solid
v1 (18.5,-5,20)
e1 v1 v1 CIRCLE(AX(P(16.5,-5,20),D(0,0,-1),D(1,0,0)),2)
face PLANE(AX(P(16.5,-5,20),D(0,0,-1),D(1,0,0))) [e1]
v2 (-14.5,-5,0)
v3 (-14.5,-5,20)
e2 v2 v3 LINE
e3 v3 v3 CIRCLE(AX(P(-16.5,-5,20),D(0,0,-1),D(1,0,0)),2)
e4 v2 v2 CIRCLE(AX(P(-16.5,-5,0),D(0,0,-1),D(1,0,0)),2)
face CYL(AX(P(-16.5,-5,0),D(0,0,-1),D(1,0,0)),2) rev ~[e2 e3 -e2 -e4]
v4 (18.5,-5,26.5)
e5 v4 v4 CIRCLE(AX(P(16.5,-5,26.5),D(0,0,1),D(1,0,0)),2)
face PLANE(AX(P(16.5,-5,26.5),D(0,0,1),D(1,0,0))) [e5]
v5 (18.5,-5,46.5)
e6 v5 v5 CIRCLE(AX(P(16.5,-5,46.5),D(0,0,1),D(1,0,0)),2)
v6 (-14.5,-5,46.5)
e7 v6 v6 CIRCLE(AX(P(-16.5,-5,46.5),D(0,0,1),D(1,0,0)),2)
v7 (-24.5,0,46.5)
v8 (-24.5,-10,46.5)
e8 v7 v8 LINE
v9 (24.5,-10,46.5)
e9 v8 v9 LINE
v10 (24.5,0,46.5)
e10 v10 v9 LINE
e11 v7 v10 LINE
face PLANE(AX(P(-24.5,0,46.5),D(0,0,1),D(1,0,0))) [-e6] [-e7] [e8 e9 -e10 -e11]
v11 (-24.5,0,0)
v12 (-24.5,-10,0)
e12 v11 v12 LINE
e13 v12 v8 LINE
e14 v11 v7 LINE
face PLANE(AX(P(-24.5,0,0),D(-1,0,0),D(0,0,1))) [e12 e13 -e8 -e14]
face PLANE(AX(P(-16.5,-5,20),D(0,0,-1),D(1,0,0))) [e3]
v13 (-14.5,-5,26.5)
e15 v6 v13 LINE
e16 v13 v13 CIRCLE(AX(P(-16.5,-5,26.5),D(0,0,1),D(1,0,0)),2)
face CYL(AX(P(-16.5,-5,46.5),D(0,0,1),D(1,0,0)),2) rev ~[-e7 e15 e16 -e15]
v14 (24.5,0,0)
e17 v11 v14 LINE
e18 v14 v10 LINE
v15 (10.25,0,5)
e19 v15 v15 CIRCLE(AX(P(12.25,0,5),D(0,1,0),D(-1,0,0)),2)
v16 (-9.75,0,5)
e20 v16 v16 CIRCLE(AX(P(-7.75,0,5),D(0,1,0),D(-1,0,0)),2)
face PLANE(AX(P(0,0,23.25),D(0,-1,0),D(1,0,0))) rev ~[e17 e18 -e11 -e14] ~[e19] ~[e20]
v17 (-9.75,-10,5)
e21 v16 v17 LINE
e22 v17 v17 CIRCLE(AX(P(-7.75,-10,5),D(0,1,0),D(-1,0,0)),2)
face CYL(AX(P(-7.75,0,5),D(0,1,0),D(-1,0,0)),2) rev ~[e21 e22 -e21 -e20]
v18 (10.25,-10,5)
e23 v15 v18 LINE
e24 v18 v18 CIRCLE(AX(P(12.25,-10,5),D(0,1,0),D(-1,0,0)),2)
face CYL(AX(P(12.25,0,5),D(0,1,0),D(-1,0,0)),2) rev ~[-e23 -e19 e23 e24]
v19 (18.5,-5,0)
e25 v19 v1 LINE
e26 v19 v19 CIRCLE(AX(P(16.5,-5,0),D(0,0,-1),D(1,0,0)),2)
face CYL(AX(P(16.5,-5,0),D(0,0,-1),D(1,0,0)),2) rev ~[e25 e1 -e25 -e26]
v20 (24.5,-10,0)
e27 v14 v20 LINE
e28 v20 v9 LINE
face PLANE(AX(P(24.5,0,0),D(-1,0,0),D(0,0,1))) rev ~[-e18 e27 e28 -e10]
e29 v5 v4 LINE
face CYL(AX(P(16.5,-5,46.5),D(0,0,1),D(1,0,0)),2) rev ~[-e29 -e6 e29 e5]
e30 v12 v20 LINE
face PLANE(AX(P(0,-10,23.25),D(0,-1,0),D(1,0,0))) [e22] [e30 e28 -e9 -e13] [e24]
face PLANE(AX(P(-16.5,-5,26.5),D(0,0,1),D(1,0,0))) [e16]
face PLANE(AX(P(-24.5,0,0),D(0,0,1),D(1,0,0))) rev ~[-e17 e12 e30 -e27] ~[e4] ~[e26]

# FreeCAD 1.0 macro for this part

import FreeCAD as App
import Part
import Sketcher
Q = App.Units.Quantity

doc = App.newDocument("Part")
body = doc.addObject("PartDesign::Body", "Body")

# Sketch on XZ plane
sketch1 = doc.addObject("Sketcher::SketchObject", "Sketch")
body.addObject(sketch1)
sketch1.AttachmentSupport = (doc.XZ_Plane, [""])
sketch1.MapMode = "FlatFace"
sketch1.addGeometry([
    Part.LineSegment(App.Vector(-24, 46, 0), App.Vector(-24, 0, 0)),
    Part.LineSegment(App.Vector(-24, 0, 0), App.Vector(24, 0, 0)),
    Part.LineSegment(App.Vector(24, 0, 0), App.Vector(24, 46, 0)),
    Part.LineSegment(App.Vector(24, 46, 0), App.Vector(-24, 46, 0)),
], False)
sketch1.addConstraint([
    Sketcher.Constraint("Coincident", 0, 2, 1, 1),
    Sketcher.Constraint("Coincident", 1, 2, 2, 1),
    Sketcher.Constraint("Coincident", 2, 2, 3, 1),
    Sketcher.Constraint("Coincident", 3, 2, 0, 1),
    Sketcher.Constraint("Vertical", 0),
    Sketcher.Constraint("Horizontal", 1),
    Sketcher.Constraint("Vertical", 2),
    Sketcher.Constraint("Horizontal", 3),
    Sketcher.Constraint("Symmetric", 0, 2, 1, 2, -1, 1),
    Sketcher.Constraint("DistanceX", 1, 1, 1, 2, Q("49 mm")),
    Sketcher.Constraint("DistanceY", 0, 2, 0, 1, Q("46.5 mm")),
])
pad1 = doc.addObject("PartDesign::Pad", "Pad")
body.addObject(pad1)
pad1.Profile = sketch1
pad1.Length = 10

# Sketch on XZ plane
sketch2 = doc.addObject("Sketcher::SketchObject", "Sketch001")
body.addObject(sketch2)
sketch2.AttachmentSupport = (doc.XZ_Plane, [""])
sketch2.MapMode = "FlatFace"
sketch2.addGeometry([
    Part.Circle(App.Vector(12.2, 5, 0), App.Vector(0, 0, 1), 2),
    Part.Circle(App.Vector(-7.8, 5, 0), App.Vector(0, 0, 1), 2),
], False)
sketch2.addConstraint([
    Sketcher.Constraint("Equal", 0, 1),
    Sketcher.Constraint("Horizontal", 0, 3, 1, 3),
    Sketcher.Constraint("Diameter", 0, Q("4 mm")),
    Sketcher.Constraint("DistanceY", -1, 1, 0, 3, Q("5 mm")),
    Sketcher.Constraint("DistanceX", 1, 3, 0, 3, Q("20 mm")),
    Sketcher.Constraint("DistanceX", -1, 1, 0, 3, Q("12.25 mm")),
])
pocket1 = doc.addObject("PartDesign::Pocket", "Pocket")
body.addObject(pocket1)
pocket1.Profile = sketch2
pocket1.Type = "ThroughAll"
pocket1.Reversed = True

# Sketch on XY plane
sketch3 = doc.addObject("Sketcher::SketchObject", "Sketch002")
body.addObject(sketch3)
sketch3.AttachmentSupport = (doc.XY_Plane, [""])
sketch3.MapMode = "FlatFace"
sketch3.AttachmentOffset = App.Placement(App.Vector(0, 0, 46.5), App.Rotation())
sketch3.addGeometry([
    Part.Circle(App.Vector(16.5, -5, 0), App.Vector(0, 0, 1), 2),
    Part.Circle(App.Vector(-16.5, -5, 0), App.Vector(0, 0, 1), 2),
], False)
sketch3.addConstraint([
    Sketcher.Constraint("Equal", 0, 1),
    Sketcher.Constraint("Symmetric", 0, 3, 1, 3, -2),
    Sketcher.Constraint("Diameter", 0, Q("4 mm")),
    Sketcher.Constraint("DistanceY", 0, 3, -1, 1, Q("5 mm")),
    Sketcher.Constraint("DistanceX", 1, 3, 0, 3, Q("33 mm")),
])
pocket2 = doc.addObject("PartDesign::Pocket", "Pocket001")
body.addObject(pocket2)
pocket2.Profile = sketch3
pocket2.Length = 20

# Sketch on XY plane
sketch4 = doc.addObject("Sketcher::SketchObject", "Sketch003")
body.addObject(sketch4)
sketch4.AttachmentSupport = (doc.XY_Plane, [""])
sketch4.MapMode = "FlatFace"
sketch4.addGeometry([
    Part.Circle(App.Vector(-16.5, -5, 0), App.Vector(0, 0, 1), 2),
    Part.Circle(App.Vector(16.5, -5, 0), App.Vector(0, 0, 1), 2),
], False)
sketch4.addConstraint([
    Sketcher.Constraint("Equal", 0, 1),
    Sketcher.Constraint("Symmetric", 0, 3, 1, 3, -2),
    Sketcher.Constraint("Diameter", 0, Q("4 mm")),
    Sketcher.Constraint("DistanceY", 0, 3, -1, 1, Q("5 mm")),
    Sketcher.Constraint("DistanceX", 0, 3, 1, 3, Q("33 mm")),
])
pocket3 = doc.addObject("PartDesign::Pocket", "Pocket002")
body.addObject(pocket3)
pocket3.Profile = sketch4
pocket3.Length = 20
pocket3.Reversed = True

doc.recompute()
